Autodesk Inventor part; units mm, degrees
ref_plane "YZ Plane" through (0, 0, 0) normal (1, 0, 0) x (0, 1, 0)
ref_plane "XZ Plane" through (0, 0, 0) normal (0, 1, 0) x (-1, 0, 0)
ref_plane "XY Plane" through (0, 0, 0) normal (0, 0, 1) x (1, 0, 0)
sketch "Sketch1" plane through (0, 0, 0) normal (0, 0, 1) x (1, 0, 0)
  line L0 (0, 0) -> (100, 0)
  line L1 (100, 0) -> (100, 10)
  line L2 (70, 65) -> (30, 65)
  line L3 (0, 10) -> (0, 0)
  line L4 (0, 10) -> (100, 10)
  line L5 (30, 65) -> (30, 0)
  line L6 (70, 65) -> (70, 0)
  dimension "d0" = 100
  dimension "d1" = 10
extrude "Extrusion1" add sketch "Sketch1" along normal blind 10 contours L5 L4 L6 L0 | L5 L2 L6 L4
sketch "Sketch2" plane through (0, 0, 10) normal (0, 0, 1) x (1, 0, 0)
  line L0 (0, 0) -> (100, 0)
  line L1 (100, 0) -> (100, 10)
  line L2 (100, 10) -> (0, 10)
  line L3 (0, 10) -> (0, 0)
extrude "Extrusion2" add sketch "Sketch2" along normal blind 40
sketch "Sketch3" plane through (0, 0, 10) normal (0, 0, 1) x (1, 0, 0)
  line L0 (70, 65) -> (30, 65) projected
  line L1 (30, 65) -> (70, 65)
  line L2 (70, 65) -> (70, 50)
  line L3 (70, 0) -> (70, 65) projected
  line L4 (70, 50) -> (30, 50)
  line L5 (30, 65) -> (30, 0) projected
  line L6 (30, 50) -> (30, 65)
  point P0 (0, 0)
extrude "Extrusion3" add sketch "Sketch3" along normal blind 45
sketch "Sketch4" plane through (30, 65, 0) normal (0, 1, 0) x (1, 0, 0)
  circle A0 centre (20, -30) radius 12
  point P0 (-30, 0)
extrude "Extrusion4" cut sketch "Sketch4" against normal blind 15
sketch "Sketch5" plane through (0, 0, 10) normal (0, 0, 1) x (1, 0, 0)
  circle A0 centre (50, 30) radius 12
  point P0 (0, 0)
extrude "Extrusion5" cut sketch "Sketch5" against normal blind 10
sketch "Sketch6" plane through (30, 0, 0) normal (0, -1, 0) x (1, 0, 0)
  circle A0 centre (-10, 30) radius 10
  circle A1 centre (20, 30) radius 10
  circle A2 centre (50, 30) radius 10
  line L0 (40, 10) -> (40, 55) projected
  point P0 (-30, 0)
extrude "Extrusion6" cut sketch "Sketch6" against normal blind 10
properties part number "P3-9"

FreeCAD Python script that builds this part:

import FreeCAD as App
import Part
import Sketcher


def add_polygon(sketch, points):
    """Adds a closed chain of lines whose ends are joined by coincident constraints."""
    first, n = sketch.GeometryCount, len(points)
    for a, b in zip(points, points[1:] + points[:1]):
        sketch.addGeometry(Part.LineSegment(App.Vector(*a, 0), App.Vector(*b, 0)), False)
    for i in range(n):
        sketch.addConstraint(Sketcher.Constraint("Coincident", first + i, 2, first + (i + 1) % n, 1))

doc = App.newDocument("Part")
body = doc.addObject("PartDesign::Body", "Body")

sketch1 = body.newObject("Sketcher::SketchObject", "Sketch")
sketch1.AttachmentSupport = (doc.getObject("XY_Plane"), [""])
sketch1.MapMode = "FlatFace"
add_polygon(sketch1, [(30, 0), (70, 0), (70, 65), (30, 65)])
sketch1.addConstraint(Sketcher.Constraint("Horizontal", 0))
sketch1.addConstraint(Sketcher.Constraint("Vertical", 1))
sketch1.addConstraint(Sketcher.Constraint("Horizontal", 2))
sketch1.addConstraint(Sketcher.Constraint("Vertical", 3))
sketch1.addConstraint(Sketcher.Constraint("PointOnObject", 0, 2, -1))
sketch1.addConstraint(Sketcher.Constraint("DistanceX", 0, 1, 0, 2, 40.0))
sketch1.addConstraint(Sketcher.Constraint("DistanceY", 1, 1, 1, 2, 65.0))
sketch1.addConstraint(Sketcher.Constraint("DistanceX", -1, 1, 0, 2, 70.0))
pad1 = body.newObject("PartDesign::Pad", "Pad")
pad1.Profile = sketch1
pad1.Length = 10

sketch2 = body.newObject("Sketcher::SketchObject", "Sketch001")
sketch2.AttachmentSupport = (doc.getObject("XY_Plane"), [""])
sketch2.MapMode = "FlatFace"
sketch2.AttachmentOffset = App.Placement(App.Vector(0, 0, 10), App.Rotation())
add_polygon(sketch2, [(0, 10), (0, 0), (100, 0), (100, 10)])
sketch2.addConstraint(Sketcher.Constraint("Vertical", 0))
sketch2.addConstraint(Sketcher.Constraint("Horizontal", 1))
sketch2.addConstraint(Sketcher.Constraint("Vertical", 2))
sketch2.addConstraint(Sketcher.Constraint("Horizontal", 3))
sketch2.addConstraint(Sketcher.Constraint("Coincident", 0, 2, -1, 1))
sketch2.addConstraint(Sketcher.Constraint("DistanceX", 1, 1, 1, 2, 100.0))
sketch2.addConstraint(Sketcher.Constraint("DistanceY", 0, 2, 0, 1, 10.0))
pad2 = body.newObject("PartDesign::Pad", "Pad001")
pad2.Profile = sketch2
pad2.Length = 40

sketch3 = body.newObject("Sketcher::SketchObject", "Sketch002")
sketch3.AttachmentSupport = (doc.getObject("XY_Plane"), [""])
sketch3.MapMode = "FlatFace"
sketch3.AttachmentOffset = App.Placement(App.Vector(0, 0, 10), App.Rotation())
add_polygon(sketch3, [(70, 50), (70, 65), (30, 65), (30, 50)])
sketch3.addConstraint(Sketcher.Constraint("Vertical", 0))
sketch3.addConstraint(Sketcher.Constraint("Horizontal", 1))
sketch3.addConstraint(Sketcher.Constraint("Vertical", 2))
sketch3.addConstraint(Sketcher.Constraint("Horizontal", 3))
sketch3.addConstraint(Sketcher.Constraint("DistanceX", 1, 2, 1, 1, 40.0))
sketch3.addConstraint(Sketcher.Constraint("DistanceY", 0, 1, 0, 2, 15.0))
sketch3.addConstraint(Sketcher.Constraint("DistanceX", -1, 1, 0, 2, 70.0))
sketch3.addConstraint(Sketcher.Constraint("DistanceY", -1, 1, 0, 2, 65.0))
pad3 = body.newObject("PartDesign::Pad", "Pad002")
pad3.Profile = sketch3
pad3.Length = 45

sketch4 = body.newObject("Sketcher::SketchObject", "Sketch003")
sketch4.AttachmentSupport = (doc.getObject("XZ_Plane"), [""])
sketch4.MapMode = "FlatFace"
sketch4.AttachmentOffset = App.Placement(App.Vector(0, 0, -65), App.Rotation())
sketch4.addGeometry(Part.Circle(App.Vector(50, 30, 0), App.Vector(0, 0, 1), 12), False)
sketch4.addConstraint(Sketcher.Constraint("Diameter", 0, 24.0))
sketch4.addConstraint(Sketcher.Constraint("DistanceX", -1, 1, 0, 3, 50.0))
sketch4.addConstraint(Sketcher.Constraint("DistanceY", -1, 1, 0, 3, 30.0))
pocket1 = body.newObject("PartDesign::Pocket", "Pocket")
pocket1.Profile = sketch4
pocket1.Length = 15
pocket1.Reversed = True

sketch5 = body.newObject("Sketcher::SketchObject", "Sketch004")
sketch5.AttachmentSupport = (doc.getObject("XY_Plane"), [""])
sketch5.MapMode = "FlatFace"
sketch5.AttachmentOffset = App.Placement(App.Vector(0, 0, 10), App.Rotation())
sketch5.addGeometry(Part.Circle(App.Vector(50, 30, 0), App.Vector(0, 0, 1), 12), False)
sketch5.addConstraint(Sketcher.Constraint("Diameter", 0, 24.0))
sketch5.addConstraint(Sketcher.Constraint("DistanceX", -1, 1, 0, 3, 50.0))
sketch5.addConstraint(Sketcher.Constraint("DistanceY", -1, 1, 0, 3, 30.0))
pocket2 = body.newObject("PartDesign::Pocket", "Pocket001")
pocket2.Profile = sketch5
pocket2.Length = 10

sketch6 = body.newObject("Sketcher::SketchObject", "Sketch005")
sketch6.AttachmentSupport = (doc.getObject("XZ_Plane"), [""])
sketch6.MapMode = "FlatFace"
sketch6.addGeometry(Part.Circle(App.Vector(20, 30, 0), App.Vector(0, 0, 1), 10), False)
sketch6.addGeometry(Part.Circle(App.Vector(50, 30, 0), App.Vector(0, 0, 1), 10), False)
sketch6.addGeometry(Part.Circle(App.Vector(80, 30, 0), App.Vector(0, 0, 1), 10), False)
sketch6.addConstraint(Sketcher.Constraint("Equal", 0, 1))
sketch6.addConstraint(Sketcher.Constraint("Equal", 1, 2))
sketch6.addConstraint(Sketcher.Constraint("Horizontal", 0, 3, 1, 3))
sketch6.addConstraint(Sketcher.Constraint("Horizontal", 1, 3, 2, 3))
sketch6.addConstraint(Sketcher.Constraint("Diameter", 0, 20.0))
sketch6.addConstraint(Sketcher.Constraint("DistanceX", -1, 1, 0, 3, 20.0))
sketch6.addConstraint(Sketcher.Constraint("DistanceY", -1, 1, 0, 3, 30.0))
sketch6.addConstraint(Sketcher.Constraint("DistanceX", -1, 1, 1, 3, 50.0))
sketch6.addConstraint(Sketcher.Constraint("DistanceX", -1, 1, 2, 3, 80.0))
pocket3 = body.newObject("PartDesign::Pocket", "Pocket002")
pocket3.Profile = sketch6
pocket3.Length = 10

doc.recompute()
